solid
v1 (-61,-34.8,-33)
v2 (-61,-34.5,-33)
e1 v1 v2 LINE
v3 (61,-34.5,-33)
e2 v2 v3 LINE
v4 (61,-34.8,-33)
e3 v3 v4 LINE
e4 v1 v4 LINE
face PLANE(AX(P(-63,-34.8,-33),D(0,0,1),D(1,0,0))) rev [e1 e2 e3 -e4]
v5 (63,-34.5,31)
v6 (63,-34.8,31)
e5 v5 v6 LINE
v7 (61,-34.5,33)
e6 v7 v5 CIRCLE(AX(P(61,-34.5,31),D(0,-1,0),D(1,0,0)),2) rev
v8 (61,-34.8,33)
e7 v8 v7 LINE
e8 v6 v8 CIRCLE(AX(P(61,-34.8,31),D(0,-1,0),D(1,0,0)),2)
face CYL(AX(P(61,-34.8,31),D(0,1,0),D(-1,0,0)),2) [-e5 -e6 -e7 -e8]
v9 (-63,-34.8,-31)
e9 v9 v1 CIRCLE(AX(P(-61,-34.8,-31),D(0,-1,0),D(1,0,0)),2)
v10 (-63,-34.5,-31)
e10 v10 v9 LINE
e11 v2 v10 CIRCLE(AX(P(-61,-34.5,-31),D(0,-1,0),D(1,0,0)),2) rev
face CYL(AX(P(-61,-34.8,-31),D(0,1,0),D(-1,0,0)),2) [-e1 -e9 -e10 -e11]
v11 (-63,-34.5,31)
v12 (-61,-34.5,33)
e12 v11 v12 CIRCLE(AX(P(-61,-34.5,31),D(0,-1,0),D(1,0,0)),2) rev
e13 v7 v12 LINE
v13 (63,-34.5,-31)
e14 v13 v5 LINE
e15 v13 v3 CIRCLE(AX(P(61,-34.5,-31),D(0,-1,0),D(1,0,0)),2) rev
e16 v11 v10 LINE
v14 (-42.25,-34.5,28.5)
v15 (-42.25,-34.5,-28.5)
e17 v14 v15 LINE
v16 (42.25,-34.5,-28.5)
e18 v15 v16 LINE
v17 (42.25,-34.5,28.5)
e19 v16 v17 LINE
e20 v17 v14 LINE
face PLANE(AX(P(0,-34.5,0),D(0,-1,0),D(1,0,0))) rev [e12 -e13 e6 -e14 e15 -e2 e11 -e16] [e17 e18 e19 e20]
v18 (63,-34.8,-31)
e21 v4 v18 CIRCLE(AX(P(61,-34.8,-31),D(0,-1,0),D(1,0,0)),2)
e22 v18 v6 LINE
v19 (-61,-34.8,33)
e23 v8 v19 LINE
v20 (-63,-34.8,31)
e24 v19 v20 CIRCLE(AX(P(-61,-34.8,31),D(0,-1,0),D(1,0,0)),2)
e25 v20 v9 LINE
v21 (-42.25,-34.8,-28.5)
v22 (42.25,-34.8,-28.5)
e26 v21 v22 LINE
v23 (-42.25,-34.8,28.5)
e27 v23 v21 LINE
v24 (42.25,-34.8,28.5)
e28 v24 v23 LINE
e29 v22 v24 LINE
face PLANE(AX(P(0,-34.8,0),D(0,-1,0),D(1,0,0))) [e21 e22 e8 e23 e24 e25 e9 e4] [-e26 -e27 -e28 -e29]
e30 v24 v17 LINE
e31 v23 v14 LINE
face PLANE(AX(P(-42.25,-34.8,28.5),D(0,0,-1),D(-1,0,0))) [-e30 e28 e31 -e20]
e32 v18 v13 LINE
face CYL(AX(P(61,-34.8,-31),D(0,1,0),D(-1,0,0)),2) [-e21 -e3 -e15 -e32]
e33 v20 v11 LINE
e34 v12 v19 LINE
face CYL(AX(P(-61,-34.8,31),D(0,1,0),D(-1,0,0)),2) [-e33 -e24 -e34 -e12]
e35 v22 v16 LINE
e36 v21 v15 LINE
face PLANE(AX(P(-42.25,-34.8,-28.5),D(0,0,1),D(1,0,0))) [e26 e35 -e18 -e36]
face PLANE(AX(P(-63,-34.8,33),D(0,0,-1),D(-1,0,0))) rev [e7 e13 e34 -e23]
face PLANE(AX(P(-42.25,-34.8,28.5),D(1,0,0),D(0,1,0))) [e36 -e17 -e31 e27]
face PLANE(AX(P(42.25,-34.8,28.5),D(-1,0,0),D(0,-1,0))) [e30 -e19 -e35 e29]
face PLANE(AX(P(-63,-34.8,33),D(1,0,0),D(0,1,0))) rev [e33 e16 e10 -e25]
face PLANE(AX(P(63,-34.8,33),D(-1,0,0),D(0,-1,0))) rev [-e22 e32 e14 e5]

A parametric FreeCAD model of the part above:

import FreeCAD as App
import Part
import Sketcher
Q = App.Units.Quantity


def edges_at(feature, points):
    """Names of the edges that pass closest to the given points."""
    edges = feature.Shape.Edges
    near = lambda p: min(range(len(edges)), key=lambda i: edges[i].distToShape(Part.Vertex(*p))[0])
    return sorted({f"Edge{near(p) + 1}" for p in points})


def add_polygon(sketch, points):
    """Adds a closed chain of lines whose ends are joined by coincident constraints."""
    first, n = sketch.GeometryCount, len(points)
    for a, b in zip(points, points[1:] + points[:1]):
        sketch.addGeometry(Part.LineSegment(App.Vector(*a, 0), App.Vector(*b, 0)), False)
    for i in range(n):
        sketch.addConstraint(Sketcher.Constraint("Coincident", first + i, 2, first + (i + 1) % n, 1))

doc = App.newDocument("Part")
body = doc.addObject("PartDesign::Body", "Body")

sketch1 = body.newObject("Sketcher::SketchObject", "Sketch")
sketch1.AttachmentSupport = (doc.getObject("XZ_Plane"), [""])
sketch1.MapMode = "FlatFace"
sketch1.AttachmentOffset = App.Placement(App.Vector(0, 0, 34.5), App.Rotation())
add_polygon(sketch1, [(-63, 33), (-63, -33), (63, -33), (63, 33)])
add_polygon(sketch1, [(42, -28), (-42, -28), (-42, 28), (42, 28)])
sketch1.addConstraint(Sketcher.Constraint("Vertical", 0))
sketch1.addConstraint(Sketcher.Constraint("Horizontal", 1))
sketch1.addConstraint(Sketcher.Constraint("Vertical", 2))
sketch1.addConstraint(Sketcher.Constraint("Horizontal", 3))
sketch1.addConstraint(Sketcher.Constraint("Horizontal", 4))
sketch1.addConstraint(Sketcher.Constraint("Vertical", 5))
sketch1.addConstraint(Sketcher.Constraint("Horizontal", 6))
sketch1.addConstraint(Sketcher.Constraint("Vertical", 7))
sketch1.addConstraint(Sketcher.Constraint("Symmetric", 0, 2, 2, 2, -1, 1))
sketch1.addConstraint(Sketcher.Constraint("Symmetric", 4, 2, 6, 2, -1, 1))
sketch1.addConstraint(Sketcher.Constraint("DistanceX", 1, 1, 1, 2, Q("126 mm")))
sketch1.addConstraint(Sketcher.Constraint("DistanceY", 0, 2, 0, 1, Q("66 mm")))
sketch1.addConstraint(Sketcher.Constraint("DistanceY", 5, 1, 5, 2, Q("57 mm")))
sketch1.addConstraint(Sketcher.Constraint("DistanceX", 4, 2, 4, 1, Q("84.5 mm")))
pad1 = body.newObject("PartDesign::Pad", "Pad")
pad1.Profile = sketch1
pad1.Length = 0.3
doc.recompute()

fillet = body.newObject("PartDesign::Fillet", "Fillet")
fillet.Base = (pad1, edges_at(pad1, [
    (63, -34.65, -33),
    (-63, -34.65, -33),
    (-63, -34.65, 33),
    (63, -34.65, 33),
]))
fillet.Radius = 2

doc.recompute()
